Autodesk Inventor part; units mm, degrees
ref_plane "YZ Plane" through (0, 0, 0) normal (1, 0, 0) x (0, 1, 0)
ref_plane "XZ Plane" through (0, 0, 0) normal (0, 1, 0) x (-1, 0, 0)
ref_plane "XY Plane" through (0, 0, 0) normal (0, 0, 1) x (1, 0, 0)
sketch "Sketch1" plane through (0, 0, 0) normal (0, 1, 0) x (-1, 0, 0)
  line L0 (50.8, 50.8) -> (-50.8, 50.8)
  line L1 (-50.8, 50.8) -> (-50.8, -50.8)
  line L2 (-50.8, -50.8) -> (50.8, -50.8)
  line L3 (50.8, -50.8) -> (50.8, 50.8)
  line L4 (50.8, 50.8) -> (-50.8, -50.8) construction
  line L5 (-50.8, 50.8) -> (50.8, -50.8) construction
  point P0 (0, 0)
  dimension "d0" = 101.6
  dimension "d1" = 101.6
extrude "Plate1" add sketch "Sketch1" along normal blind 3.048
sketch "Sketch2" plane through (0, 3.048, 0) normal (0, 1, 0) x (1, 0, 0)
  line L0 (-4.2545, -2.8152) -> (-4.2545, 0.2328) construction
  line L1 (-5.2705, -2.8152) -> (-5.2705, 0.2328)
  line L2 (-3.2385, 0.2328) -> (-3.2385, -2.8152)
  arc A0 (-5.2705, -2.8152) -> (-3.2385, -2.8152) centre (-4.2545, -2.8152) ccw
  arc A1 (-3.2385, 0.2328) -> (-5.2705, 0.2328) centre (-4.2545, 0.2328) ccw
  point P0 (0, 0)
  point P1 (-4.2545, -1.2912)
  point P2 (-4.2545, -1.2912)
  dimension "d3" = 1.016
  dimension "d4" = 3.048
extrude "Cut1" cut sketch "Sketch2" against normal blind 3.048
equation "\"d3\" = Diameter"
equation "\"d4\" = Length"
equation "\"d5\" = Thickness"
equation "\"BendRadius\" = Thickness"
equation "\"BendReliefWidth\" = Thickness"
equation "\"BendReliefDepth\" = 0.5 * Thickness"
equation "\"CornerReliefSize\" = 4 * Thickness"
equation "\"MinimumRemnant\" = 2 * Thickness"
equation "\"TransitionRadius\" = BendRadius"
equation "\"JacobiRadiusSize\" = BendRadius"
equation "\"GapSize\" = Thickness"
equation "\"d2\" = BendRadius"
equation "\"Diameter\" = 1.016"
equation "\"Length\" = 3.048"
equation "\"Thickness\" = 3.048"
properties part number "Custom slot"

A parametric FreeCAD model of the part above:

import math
import FreeCAD as App
import Part
import Sketcher
Q = App.Units.Quantity

doc = App.newDocument("Part")
body = doc.addObject("PartDesign::Body", "Body")

# Sketch on XZ plane
sketch1 = body.newObject("Sketcher::SketchObject", "Sketch")
sketch1.AttachmentSupport = (doc.getObject("XZ_Plane"), [""])
sketch1.MapMode = "FlatFace"
sketch1.addGeometry([
    Part.LineSegment(App.Vector(-51, -51, 0), App.Vector(-51, 51, 0)),
    Part.LineSegment(App.Vector(-51, 51, 0), App.Vector(51, 51, 0)),
    Part.LineSegment(App.Vector(51, 51, 0), App.Vector(51, -51, 0)),
    Part.LineSegment(App.Vector(51, -51, 0), App.Vector(-51, -51, 0)),
], False)
sketch1.addConstraint([
    Sketcher.Constraint("Coincident", 0, 2, 1, 1),
    Sketcher.Constraint("Coincident", 1, 2, 2, 1),
    Sketcher.Constraint("Coincident", 2, 2, 3, 1),
    Sketcher.Constraint("Coincident", 3, 2, 0, 1),
    Sketcher.Constraint("Vertical", 0),
    Sketcher.Constraint("Horizontal", 1),
    Sketcher.Constraint("Vertical", 2),
    Sketcher.Constraint("Horizontal", 3),
    Sketcher.Constraint("Symmetric", 0, 2, 2, 2, -1, 1),
    Sketcher.Constraint("Equal", 3, 0),
    Sketcher.Constraint("DistanceX", 1, 1, 1, 2, Q("4 in")),
])
pad1 = body.newObject("PartDesign::Pad", "Pad")
pad1.Profile = sketch1
pad1.Length = Q("0.12 in")
pad1.Reversed = True

# Sketch on XZ plane
sketch2 = body.newObject("Sketcher::SketchObject", "Sketch001")
sketch2.AttachmentSupport = (doc.getObject("XZ_Plane"), [""])
sketch2.MapMode = "FlatFace"
sketch2.AttachmentOffset = App.Placement(App.Vector(0, 0, -0.12 * 25.4), App.Rotation())
sketch2.addGeometry([
    Part.LineSegment(App.Vector(-5.3, -0.2, 0), App.Vector(-5.3, 2.8, 0)),
    Part.ArcOfCircle(Part.Circle(App.Vector(-4.3, 2.8, 0), App.Vector(0, 0, 1), 1), math.radians(0), math.radians(180)),
    Part.LineSegment(App.Vector(-3.2, 2.8, 0), App.Vector(-3.2, -0.2, 0)),
    Part.ArcOfCircle(Part.Circle(App.Vector(-4.3, -0.2, 0), App.Vector(0, 0, 1), 1), math.radians(180), math.radians(360)),
], False)
sketch2.addConstraint([
    Sketcher.Constraint("Tangent", 0, 2, 1, 2),
    Sketcher.Constraint("Tangent", 1, 1, 2, 1),
    Sketcher.Constraint("Tangent", 2, 2, 3, 2),
    Sketcher.Constraint("Tangent", 3, 1, 0, 1),
    Sketcher.Constraint("Vertical", 0),
    Sketcher.Constraint("Vertical", 2),
    Sketcher.Constraint("Radius", 1, Q("0.04 in")),
    Sketcher.Constraint("DistanceY", 0, 1, 0, 2, Q("0.12 in")),
    Sketcher.Constraint("DistanceX", 1, 3, -1, 1, Q("0.1675 in")),
    Sketcher.Constraint("DistanceY", -1, 1, 1, 3, Q("2.8152 mm")),
])
pocket1 = body.newObject("PartDesign::Pocket", "Pocket")
pocket1.Profile = sketch2
pocket1.Length = Q("0.12 in")
pocket1.Reversed = True

doc.recompute()
